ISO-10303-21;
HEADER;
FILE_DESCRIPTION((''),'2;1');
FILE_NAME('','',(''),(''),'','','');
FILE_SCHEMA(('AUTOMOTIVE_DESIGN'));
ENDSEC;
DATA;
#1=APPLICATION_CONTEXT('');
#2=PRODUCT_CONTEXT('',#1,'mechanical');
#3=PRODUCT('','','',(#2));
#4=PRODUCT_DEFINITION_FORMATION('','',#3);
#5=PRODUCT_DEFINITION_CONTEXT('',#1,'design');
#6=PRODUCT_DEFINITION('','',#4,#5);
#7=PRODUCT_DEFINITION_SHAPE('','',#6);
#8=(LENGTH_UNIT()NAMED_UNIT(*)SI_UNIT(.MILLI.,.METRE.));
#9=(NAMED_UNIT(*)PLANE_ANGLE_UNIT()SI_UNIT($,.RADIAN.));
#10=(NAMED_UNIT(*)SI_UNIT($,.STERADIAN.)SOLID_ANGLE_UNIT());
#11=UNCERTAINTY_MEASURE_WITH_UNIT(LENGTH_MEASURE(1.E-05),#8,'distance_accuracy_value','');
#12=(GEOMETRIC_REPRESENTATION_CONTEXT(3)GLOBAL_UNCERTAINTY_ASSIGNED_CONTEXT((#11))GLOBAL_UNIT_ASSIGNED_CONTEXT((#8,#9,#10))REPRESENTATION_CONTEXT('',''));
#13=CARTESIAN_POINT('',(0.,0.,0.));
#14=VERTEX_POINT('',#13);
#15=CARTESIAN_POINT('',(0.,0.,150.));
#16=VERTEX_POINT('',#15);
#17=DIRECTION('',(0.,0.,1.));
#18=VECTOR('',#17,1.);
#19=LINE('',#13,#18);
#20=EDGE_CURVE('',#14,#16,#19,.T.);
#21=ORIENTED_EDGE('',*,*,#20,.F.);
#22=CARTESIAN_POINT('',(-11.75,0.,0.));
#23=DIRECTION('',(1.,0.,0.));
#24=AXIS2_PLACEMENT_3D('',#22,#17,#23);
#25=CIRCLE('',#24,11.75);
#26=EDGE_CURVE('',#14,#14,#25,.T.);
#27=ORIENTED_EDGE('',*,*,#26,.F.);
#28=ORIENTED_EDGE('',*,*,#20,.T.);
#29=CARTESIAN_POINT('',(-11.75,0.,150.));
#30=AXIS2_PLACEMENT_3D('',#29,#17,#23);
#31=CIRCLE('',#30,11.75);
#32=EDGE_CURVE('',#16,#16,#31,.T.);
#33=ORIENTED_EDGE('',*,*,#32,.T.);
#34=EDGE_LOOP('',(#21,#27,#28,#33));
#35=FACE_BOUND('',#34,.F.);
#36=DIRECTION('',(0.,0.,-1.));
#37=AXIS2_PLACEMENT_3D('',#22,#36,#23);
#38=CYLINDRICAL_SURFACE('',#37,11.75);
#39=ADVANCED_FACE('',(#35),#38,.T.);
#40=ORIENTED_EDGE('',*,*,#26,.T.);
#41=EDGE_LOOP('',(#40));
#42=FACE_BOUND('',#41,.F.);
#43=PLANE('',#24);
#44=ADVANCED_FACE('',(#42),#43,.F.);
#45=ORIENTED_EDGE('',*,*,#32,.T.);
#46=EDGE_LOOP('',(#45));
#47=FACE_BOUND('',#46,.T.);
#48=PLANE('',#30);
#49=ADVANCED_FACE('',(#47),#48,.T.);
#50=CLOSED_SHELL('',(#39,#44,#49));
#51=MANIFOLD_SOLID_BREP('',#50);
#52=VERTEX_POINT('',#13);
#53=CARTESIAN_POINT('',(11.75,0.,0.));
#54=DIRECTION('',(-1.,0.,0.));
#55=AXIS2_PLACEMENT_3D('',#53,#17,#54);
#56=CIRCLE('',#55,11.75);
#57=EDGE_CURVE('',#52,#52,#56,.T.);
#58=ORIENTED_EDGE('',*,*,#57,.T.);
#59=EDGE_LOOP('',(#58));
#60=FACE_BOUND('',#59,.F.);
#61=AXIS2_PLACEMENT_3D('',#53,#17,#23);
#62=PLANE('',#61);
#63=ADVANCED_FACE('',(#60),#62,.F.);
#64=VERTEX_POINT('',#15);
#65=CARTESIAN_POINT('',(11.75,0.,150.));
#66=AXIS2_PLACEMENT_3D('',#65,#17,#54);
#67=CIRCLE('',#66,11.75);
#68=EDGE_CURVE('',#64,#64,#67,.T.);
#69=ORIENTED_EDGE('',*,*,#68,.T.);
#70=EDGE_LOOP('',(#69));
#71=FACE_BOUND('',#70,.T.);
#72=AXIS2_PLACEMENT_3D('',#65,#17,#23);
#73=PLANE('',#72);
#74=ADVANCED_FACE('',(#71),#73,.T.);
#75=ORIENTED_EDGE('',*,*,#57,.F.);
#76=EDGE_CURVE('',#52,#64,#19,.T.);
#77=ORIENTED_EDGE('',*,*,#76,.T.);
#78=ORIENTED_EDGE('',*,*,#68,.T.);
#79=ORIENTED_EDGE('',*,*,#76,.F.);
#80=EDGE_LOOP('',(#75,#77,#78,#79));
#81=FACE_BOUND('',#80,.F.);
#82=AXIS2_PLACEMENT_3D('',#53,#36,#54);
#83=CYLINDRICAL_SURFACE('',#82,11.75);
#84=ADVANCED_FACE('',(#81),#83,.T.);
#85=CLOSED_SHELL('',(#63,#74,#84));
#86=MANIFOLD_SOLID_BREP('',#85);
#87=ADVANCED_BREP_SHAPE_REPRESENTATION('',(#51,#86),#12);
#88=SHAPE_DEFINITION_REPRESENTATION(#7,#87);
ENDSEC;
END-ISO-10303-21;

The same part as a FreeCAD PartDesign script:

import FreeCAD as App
import Part
import Sketcher

doc = App.newDocument("Part")
body = doc.addObject("PartDesign::Body", "Body")
body.AllowCompound = True

# Sketch on XY plane
sketch1 = body.newObject("Sketcher::SketchObject", "Sketch")
sketch1.AttachmentSupport = (doc.getObject("XY_Plane"), [""])
sketch1.MapMode = "FlatFace"
sketch1.addGeometry(Part.Circle(App.Vector(12, 0, 0), App.Vector(0, 0, 1), 12), False)
sketch1.addGeometry(Part.Circle(App.Vector(-12, 0, 0), App.Vector(0, 0, 1), 12), False)
sketch1.addConstraint(Sketcher.Constraint("Equal", 0, 1))
sketch1.addConstraint(Sketcher.Constraint("Symmetric", 0, 3, 1, 3, -1, 1))
sketch1.addConstraint(Sketcher.Constraint("PointOnObject", 0, 3, -1))
sketch1.addConstraint(Sketcher.Constraint("Diameter", 0, 23.5))
sketch1.addConstraint(Sketcher.Constraint("DistanceX", 1, 3, 0, 3, 23.5))
pad1 = body.newObject("PartDesign::Pad", "Pad")
pad1.Profile = sketch1
pad1.Length = 150

doc.recompute()
